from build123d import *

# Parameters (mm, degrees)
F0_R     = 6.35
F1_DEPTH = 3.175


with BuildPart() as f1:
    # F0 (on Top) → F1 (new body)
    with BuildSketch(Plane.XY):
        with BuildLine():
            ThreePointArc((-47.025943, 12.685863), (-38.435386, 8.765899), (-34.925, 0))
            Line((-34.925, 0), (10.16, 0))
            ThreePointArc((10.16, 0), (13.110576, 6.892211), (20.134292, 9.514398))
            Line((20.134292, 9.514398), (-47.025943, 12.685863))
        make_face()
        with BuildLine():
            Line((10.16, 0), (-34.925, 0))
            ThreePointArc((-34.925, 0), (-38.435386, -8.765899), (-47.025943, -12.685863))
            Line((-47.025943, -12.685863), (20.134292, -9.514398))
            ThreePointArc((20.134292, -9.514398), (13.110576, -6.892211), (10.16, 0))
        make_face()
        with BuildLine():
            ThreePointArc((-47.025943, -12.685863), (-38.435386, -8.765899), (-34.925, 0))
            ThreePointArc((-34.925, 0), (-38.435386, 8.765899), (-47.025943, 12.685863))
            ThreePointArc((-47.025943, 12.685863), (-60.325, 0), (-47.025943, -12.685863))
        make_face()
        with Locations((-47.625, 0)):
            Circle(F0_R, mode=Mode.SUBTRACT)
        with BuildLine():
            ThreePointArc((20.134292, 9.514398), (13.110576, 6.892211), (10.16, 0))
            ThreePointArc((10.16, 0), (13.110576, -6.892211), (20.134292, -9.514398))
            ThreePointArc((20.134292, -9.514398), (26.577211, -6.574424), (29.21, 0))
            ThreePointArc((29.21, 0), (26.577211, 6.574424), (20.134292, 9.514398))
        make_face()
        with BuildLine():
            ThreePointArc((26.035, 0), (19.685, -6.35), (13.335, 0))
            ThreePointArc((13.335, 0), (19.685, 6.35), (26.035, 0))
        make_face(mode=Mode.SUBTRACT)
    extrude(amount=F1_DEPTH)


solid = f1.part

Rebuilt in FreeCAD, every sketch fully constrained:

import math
import FreeCAD as App
import Part
import Sketcher
Q = App.Units.Quantity

doc = App.newDocument("Part")
params = doc.addObject("Spreadsheet::Sheet", "Params")
for row, (alias, value) in enumerate([
    ("sketch1_diameter", "0.5 in"),
    ("sketch1_radius", "0.5 in"),
    ("sketch1_radius2", "0.375 in"),
    ("pad1_length", "0.125 in"),
], start=1):
    params.set(f"A{row}", alias)
    params.set(f"B{row}", "=" + value)
    params.setAlias(f"B{row}", alias)

body = doc.addObject("PartDesign::Body", "Body")

# Sketch on XY plane
sketch1 = body.newObject("Sketcher::SketchObject", "Sketch")
sketch1.AttachmentSupport = (doc.getObject("XY_Plane"), [""])
sketch1.MapMode = "FlatFace"
sketch1.addGeometry([
    Part.LineSegment(App.Vector(-47, -13, 0), App.Vector(20, -10, 0)),  # 0
    Part.ArcOfCircle(Part.Circle(App.Vector(20, 0, 0), App.Vector(0, 0, 1), 10), math.radians(-87), math.radians(0)),  # 1
    Part.ArcOfCircle(Part.Circle(App.Vector(20, 0, 0), App.Vector(0, 0, 1), 10), math.radians(0), math.radians(87)),  # 2
    Part.LineSegment(App.Vector(20, 10, 0), App.Vector(-47, 13, 0)),  # 3
    Part.ArcOfCircle(Part.Circle(App.Vector(-48, 0, 0), App.Vector(0, 0, 1), 13), math.radians(87), math.radians(273)),  # 4
    Part.Circle(App.Vector(20, 0, 0), App.Vector(0, 0, 1), 6),  # 5
    Part.Circle(App.Vector(-48, 0, 0), App.Vector(0, 0, 1), 6),  # 6
], False)
sketch1.addConstraint([
    Sketcher.Constraint("Tangent", 0, 2, 1, 1),
    Sketcher.Constraint("Tangent", 1, 2, 2, 1),
    Sketcher.Constraint("Tangent", 2, 2, 3, 1),
    Sketcher.Constraint("Tangent", 3, 2, 4, 1),
    Sketcher.Constraint("Tangent", 4, 2, 0, 1),
    Sketcher.Constraint("Coincident", 5, 3, 1, 3),
    Sketcher.Constraint("Coincident", 6, 3, 4, 3),
    Sketcher.Constraint("Equal", 1, 2),
    Sketcher.Constraint("Equal", 5, 6),
    Sketcher.Constraint("Symmetric", 0, 2, 2, 2, -1),
    Sketcher.Constraint("PointOnObject", 1, 2, -1),
    Sketcher.Constraint("Diameter", 5, Q("0.5 in")),
    Sketcher.Constraint("Radius", 4, Q("0.5 in")),
    Sketcher.Constraint("Radius", 1, Q("0.375 in")),
    Sketcher.Constraint("DistanceX", -1, 1, 1, 2, Q("1.15 in")),
    Sketcher.Constraint("DistanceX", 4, 3, 1, 3, Q("2.65 in")),
])
sketch1.setExpression("Constraints[11]", "Params.sketch1_diameter")
sketch1.setExpression("Constraints[12]", "Params.sketch1_radius")
sketch1.setExpression("Constraints[13]", "Params.sketch1_radius2")
pad1 = body.newObject("PartDesign::Pad", "Pad")
pad1.Profile = sketch1
pad1.setExpression("Length", "Params.pad1_length")

doc.recompute()
